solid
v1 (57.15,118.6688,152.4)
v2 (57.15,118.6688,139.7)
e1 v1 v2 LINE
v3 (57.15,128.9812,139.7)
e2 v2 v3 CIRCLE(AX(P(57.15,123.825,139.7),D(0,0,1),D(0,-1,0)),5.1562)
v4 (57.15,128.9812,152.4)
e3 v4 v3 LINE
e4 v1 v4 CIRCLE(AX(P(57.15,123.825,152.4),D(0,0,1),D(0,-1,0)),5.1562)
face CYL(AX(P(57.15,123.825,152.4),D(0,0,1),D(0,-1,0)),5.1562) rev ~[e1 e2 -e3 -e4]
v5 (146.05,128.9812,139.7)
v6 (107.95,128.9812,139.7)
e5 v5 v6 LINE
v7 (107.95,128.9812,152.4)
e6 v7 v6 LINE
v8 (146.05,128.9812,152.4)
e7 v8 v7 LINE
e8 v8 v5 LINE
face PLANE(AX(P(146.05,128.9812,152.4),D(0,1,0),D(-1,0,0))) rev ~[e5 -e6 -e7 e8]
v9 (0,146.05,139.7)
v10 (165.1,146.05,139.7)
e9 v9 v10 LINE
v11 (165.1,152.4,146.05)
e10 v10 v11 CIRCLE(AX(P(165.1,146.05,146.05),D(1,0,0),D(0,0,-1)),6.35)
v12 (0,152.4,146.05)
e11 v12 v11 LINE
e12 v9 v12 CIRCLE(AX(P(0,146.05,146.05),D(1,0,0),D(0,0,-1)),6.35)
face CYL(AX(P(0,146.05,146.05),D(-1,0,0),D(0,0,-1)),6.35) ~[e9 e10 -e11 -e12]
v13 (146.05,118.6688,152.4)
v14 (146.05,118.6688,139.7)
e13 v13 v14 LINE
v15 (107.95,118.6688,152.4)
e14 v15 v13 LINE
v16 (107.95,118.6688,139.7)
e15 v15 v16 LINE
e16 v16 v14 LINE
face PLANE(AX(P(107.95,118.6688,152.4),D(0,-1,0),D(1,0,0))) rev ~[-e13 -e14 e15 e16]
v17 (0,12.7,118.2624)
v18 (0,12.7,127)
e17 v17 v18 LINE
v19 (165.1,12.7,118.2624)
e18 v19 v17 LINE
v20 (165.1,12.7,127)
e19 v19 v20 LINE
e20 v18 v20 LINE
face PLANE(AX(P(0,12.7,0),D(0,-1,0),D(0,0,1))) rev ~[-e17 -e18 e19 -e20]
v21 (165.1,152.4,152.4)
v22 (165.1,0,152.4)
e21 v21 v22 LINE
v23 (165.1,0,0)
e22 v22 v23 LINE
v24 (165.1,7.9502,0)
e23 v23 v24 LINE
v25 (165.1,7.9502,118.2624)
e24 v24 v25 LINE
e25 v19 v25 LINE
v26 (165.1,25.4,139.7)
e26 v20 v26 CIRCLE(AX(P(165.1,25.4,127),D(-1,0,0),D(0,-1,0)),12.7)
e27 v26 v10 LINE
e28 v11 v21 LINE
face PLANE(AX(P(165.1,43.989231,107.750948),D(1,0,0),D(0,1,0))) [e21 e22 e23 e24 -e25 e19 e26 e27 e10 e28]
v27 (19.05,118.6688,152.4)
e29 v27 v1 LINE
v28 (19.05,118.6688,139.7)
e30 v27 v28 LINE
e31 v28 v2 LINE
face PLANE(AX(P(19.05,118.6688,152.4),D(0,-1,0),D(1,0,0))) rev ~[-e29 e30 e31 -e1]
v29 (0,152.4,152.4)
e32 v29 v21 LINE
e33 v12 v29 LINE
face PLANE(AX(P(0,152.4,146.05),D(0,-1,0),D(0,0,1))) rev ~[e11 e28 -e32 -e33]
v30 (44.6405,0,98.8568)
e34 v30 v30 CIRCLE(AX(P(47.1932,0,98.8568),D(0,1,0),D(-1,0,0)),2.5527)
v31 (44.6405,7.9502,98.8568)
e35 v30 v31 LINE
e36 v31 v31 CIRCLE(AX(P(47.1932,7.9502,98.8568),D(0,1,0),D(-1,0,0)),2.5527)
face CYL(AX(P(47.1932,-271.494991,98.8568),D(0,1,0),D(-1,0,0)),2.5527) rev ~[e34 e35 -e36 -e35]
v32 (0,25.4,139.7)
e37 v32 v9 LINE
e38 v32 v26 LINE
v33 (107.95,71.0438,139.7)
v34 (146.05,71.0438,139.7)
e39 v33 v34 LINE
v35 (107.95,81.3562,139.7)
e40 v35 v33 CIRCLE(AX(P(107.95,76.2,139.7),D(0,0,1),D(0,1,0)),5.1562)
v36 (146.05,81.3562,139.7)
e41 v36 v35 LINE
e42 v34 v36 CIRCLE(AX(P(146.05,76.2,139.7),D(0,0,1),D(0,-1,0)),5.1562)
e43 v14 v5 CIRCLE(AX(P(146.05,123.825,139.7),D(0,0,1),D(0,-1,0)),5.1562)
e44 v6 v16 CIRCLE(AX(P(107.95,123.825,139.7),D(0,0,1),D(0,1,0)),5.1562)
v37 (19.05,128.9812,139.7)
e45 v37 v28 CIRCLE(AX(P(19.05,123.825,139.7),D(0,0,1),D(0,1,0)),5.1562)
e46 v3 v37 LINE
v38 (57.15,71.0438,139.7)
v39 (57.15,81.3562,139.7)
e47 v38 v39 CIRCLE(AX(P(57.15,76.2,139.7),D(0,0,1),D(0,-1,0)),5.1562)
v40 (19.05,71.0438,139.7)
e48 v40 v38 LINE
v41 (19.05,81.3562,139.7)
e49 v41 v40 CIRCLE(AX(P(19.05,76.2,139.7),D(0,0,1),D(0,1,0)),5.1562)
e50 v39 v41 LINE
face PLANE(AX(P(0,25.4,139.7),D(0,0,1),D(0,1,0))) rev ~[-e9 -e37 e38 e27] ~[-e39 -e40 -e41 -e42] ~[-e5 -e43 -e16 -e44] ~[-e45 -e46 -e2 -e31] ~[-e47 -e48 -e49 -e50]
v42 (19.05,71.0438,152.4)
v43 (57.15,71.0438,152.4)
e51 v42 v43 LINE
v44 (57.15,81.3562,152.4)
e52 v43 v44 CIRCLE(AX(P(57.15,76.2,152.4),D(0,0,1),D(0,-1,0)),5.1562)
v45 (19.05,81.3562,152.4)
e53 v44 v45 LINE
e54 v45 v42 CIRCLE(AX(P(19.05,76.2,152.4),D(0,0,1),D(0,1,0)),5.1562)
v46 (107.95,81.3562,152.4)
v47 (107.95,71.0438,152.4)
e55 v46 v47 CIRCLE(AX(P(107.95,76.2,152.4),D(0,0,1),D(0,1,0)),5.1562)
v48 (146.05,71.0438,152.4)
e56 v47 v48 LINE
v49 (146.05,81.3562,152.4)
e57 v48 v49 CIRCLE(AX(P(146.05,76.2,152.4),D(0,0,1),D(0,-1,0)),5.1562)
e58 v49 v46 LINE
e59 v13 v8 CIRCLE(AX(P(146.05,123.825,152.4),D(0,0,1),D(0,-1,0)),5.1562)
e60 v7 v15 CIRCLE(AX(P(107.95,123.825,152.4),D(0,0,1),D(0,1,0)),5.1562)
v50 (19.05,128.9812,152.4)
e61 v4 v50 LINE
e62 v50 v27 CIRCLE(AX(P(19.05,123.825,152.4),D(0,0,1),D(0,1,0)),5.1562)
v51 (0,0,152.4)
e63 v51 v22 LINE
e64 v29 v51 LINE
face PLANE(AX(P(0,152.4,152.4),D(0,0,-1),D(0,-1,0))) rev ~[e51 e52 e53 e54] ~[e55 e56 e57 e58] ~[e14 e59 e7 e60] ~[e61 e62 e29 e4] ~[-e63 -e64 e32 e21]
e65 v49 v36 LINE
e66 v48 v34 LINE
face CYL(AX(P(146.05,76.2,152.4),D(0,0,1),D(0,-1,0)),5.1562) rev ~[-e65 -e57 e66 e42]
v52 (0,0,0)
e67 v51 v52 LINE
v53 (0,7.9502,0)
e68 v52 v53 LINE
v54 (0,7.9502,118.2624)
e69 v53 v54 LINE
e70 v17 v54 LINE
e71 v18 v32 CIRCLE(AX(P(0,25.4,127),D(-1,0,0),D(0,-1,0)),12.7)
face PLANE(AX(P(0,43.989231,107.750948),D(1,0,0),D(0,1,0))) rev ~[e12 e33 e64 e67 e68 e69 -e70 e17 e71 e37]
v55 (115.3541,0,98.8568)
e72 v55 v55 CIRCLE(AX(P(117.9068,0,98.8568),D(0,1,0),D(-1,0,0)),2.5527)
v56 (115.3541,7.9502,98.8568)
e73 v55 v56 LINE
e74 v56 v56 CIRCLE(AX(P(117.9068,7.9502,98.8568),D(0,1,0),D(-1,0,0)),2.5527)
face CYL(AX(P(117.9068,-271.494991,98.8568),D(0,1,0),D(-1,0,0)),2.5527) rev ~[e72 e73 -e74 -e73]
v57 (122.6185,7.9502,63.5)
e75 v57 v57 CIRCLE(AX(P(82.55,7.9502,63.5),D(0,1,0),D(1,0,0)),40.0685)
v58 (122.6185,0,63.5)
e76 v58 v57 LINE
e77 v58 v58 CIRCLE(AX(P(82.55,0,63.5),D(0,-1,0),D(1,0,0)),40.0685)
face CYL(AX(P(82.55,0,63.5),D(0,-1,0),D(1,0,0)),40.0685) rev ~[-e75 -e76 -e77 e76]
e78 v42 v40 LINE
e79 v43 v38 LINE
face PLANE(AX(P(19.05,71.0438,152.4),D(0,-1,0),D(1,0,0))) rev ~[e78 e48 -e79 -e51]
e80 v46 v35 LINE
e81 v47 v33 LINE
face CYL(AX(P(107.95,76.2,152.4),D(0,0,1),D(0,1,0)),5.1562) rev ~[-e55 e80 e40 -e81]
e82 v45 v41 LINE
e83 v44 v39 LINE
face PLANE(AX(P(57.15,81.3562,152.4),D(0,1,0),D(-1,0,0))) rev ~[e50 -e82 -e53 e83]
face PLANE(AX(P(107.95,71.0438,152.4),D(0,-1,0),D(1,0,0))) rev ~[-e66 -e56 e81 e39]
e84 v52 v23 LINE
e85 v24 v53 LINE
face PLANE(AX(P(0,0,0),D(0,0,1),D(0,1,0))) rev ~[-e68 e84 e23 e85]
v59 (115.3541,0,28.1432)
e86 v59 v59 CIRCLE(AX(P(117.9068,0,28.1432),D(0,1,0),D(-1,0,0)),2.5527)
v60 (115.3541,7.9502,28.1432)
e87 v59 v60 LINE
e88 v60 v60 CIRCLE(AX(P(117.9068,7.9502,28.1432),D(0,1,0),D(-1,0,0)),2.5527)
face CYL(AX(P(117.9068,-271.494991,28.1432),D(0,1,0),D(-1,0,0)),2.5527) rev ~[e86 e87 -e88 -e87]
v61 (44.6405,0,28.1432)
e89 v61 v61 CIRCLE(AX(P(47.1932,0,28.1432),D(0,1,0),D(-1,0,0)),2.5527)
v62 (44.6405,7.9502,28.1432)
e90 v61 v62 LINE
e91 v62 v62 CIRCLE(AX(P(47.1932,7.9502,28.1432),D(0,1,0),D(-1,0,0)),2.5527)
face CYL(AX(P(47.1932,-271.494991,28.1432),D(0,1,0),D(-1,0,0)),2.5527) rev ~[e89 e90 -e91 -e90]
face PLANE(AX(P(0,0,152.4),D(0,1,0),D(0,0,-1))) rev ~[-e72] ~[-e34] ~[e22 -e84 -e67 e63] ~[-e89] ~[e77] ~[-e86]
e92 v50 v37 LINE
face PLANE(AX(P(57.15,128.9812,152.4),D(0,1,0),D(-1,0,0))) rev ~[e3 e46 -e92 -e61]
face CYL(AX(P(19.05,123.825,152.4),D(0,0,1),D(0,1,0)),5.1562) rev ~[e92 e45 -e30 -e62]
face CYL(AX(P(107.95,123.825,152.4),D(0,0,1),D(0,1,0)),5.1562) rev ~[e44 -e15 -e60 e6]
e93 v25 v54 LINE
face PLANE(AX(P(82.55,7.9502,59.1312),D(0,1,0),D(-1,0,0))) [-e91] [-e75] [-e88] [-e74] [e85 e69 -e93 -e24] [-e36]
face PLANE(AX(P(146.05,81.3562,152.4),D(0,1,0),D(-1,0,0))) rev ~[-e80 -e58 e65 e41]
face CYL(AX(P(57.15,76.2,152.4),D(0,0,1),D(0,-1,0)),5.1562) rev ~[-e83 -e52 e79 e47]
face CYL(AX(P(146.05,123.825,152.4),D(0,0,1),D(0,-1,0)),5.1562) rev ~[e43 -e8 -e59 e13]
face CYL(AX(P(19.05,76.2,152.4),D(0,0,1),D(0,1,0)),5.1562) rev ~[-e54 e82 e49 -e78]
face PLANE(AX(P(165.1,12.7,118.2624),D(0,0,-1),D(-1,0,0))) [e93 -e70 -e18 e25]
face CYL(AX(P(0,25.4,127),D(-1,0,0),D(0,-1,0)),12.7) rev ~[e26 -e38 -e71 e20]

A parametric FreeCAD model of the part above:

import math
import FreeCAD as App
import Part
import Sketcher

V = App.Vector
Q = App.Units.Quantity

doc = App.newDocument("Part")
params = doc.addObject("Spreadsheet::Sheet", "Params")
for row, (alias, value) in enumerate([
    ("sketch1_radius", "0.5 in"),
    ("sketch1_width", "6 in"),
    ("sketch1_height", "5 in"),
    ("sketch1_radius2", "0.25 in"),
    ("sketch1_width2", "0.5 in"),
    ("pad1_length", "6.5 in"),
    ("sketch2_diameter", "3.155 in"),
    ("pocket1_length", "1 in"),
    ("sketch3_diameter", "0.201 in"),
    ("hole_diameter", "0.201 in"),
    ("sketch4_width", "1.5 in"),
    ("sketch4_radius", "0.203 in"),
    ("pocket2_length", "1 in"),
    ("sketch5_diameter", "0.201 in"),
    ("sketch5_diameter2", "3.155 in"),
    ("sketch5_width", "6.5 in"),
    ("sketch5_height", "4.656 in"),
    ("pocket3_length", "0.187 in"),
], start=1):
    params.set(f"A{row}", alias)
    params.set(f"B{row}", "=" + value)
    params.setAlias(f"B{row}", alias)

body = doc.addObject("PartDesign::Body", "Body")

# Sketch on YZ plane
sketch1 = body.newObject("Sketcher::SketchObject", "Sketch")
sketch1.AttachmentSupport = (doc.getObject("YZ_Plane"), [""])
sketch1.MapMode = "FlatFace"
sketch1.addGeometry([
    Part.LineSegment(V(0, 152, 0), V(0, 0, 0)),  # 0
    Part.LineSegment(V(0, 0, 0), V(13, 0, 0)),  # 1
    Part.LineSegment(V(13, 0, 0), V(13, 127, 0)),  # 2
    Part.ArcOfCircle(Part.Circle(V(25, 127, 0), V(0, 0, 1), 13), math.radians(90), math.radians(180)),  # 3
    Part.LineSegment(V(25, 140, 0), V(146, 140, 0)),  # 4
    Part.ArcOfCircle(Part.Circle(V(146, 146, 0), V(0, 0, 1), 6), math.radians(-90), math.radians(0)),  # 5
    Part.LineSegment(V(152, 146, 0), V(152, 152, 0)),  # 6
    Part.LineSegment(V(152, 152, 0), V(0, 152, 0)),  # 7
], False)
sketch1.addConstraint([
    Sketcher.Constraint("Coincident", 0, 2, 1, 1),
    Sketcher.Constraint("Coincident", 1, 2, 2, 1),
    Sketcher.Constraint("Tangent", 2, 2, 3, 2),
    Sketcher.Constraint("Tangent", 3, 1, 4, 1),
    Sketcher.Constraint("Tangent", 4, 2, 5, 1),
    Sketcher.Constraint("Tangent", 5, 2, 6, 1),
    Sketcher.Constraint("Coincident", 6, 2, 7, 1),
    Sketcher.Constraint("Coincident", 7, 2, 0, 1),
    Sketcher.Constraint("Vertical", 0),
    Sketcher.Constraint("Horizontal", 1),
    Sketcher.Constraint("Vertical", 2),
    Sketcher.Constraint("Horizontal", 4),
    Sketcher.Constraint("Vertical", 6),
    Sketcher.Constraint("Horizontal", 7),
    Sketcher.Constraint("Coincident", 0, 2, -1, 1),
    Sketcher.Constraint("Equal", 7, 0),
    Sketcher.Constraint("Radius", 3, Q("0.5 in")),
    Sketcher.Constraint("DistanceX", 7, 2, 7, 1, Q("6 in")),
    Sketcher.Constraint("DistanceY", 2, 1, 2, 2, Q("5 in")),
    Sketcher.Constraint("Radius", 5, Q("0.25 in")),
    Sketcher.Constraint("DistanceX", 1, 1, 1, 2, Q("0.5 in")),
])
sketch1.setExpression("Constraints[16]", "Params.sketch1_radius")
sketch1.setExpression("Constraints[17]", "Params.sketch1_width")
sketch1.setExpression("Constraints[18]", "Params.sketch1_height")
sketch1.setExpression("Constraints[19]", "Params.sketch1_radius2")
sketch1.setExpression("Constraints[20]", "Params.sketch1_width2")
pad1 = body.newObject("PartDesign::Pad", "Pad")
pad1.Profile = sketch1
pad1.setExpression("Length", "Params.pad1_length")

# Sketch on XZ plane
sketch2 = body.newObject("Sketcher::SketchObject", "Sketch001")
sketch2.AttachmentSupport = (doc.getObject("XZ_Plane"), [""])
sketch2.MapMode = "FlatFace"
sketch2.addGeometry(Part.Circle(V(83, 64, 0), V(0, 0, 1), 40), False)
sketch2.addConstraint([
    Sketcher.Constraint("Diameter", 0, Q("3.155 in")),
    Sketcher.Constraint("DistanceY", -1, 1, 0, 3, Q("2.5 in")),
    Sketcher.Constraint("DistanceX", -1, 1, 0, 3, Q("3.25 in")),
])
sketch2.setExpression("Constraints[0]", "Params.sketch2_diameter")
pocket1 = body.newObject("PartDesign::Pocket", "Pocket")
pocket1.Profile = sketch2
pocket1.setExpression("Length", "Params.pocket1_length")

# Sketch on XZ plane
sketch3 = body.newObject("Sketcher::SketchObject", "Sketch002")
sketch3.AttachmentSupport = (doc.getObject("XZ_Plane"), [""])
sketch3.MapMode = "FlatFace"
sketch3.addGeometry([
    Part.Circle(V(47.2, 98.9, 0), V(0, 0, 1), 2.6),
    Part.Circle(V(117.9, 98.9, 0), V(0, 0, 1), 2.6),
    Part.Circle(V(117.9, 28.1, 0), V(0, 0, 1), 2.6),
    Part.Circle(V(47.2, 28.1, 0), V(0, 0, 1), 2.6),
], False)
sketch3.addConstraint([
    Sketcher.Constraint("Equal", 0, 1),
    Sketcher.Constraint("Equal", 1, 2),
    Sketcher.Constraint("Equal", 2, 3),
    Sketcher.Constraint("Horizontal", 0, 3, 1, 3),
    Sketcher.Constraint("Horizontal", 2, 3, 3, 3),
    Sketcher.Constraint("Vertical", 1, 3, 2, 3),
    Sketcher.Constraint("Vertical", 0, 3, 3, 3),
    Sketcher.Constraint("Diameter", 0, Q("0.201 in")),
    Sketcher.Constraint("DistanceX", -1, 1, 0, 3, Q("1.858 in")),
    Sketcher.Constraint("DistanceY", -1, 1, 0, 3, Q("3.892 in")),
    Sketcher.Constraint("DistanceX", -1, 1, 1, 3, Q("4.642 in")),
    Sketcher.Constraint("DistanceY", -1, 1, 2, 3, Q("1.108 in")),
])
sketch3.setExpression("Constraints[7]", "Params.sketch3_diameter")
doc.recompute()
hole = body.newObject("PartDesign::Hole", "Hole")
hole.Profile = sketch3
hole.ThreadType = "None"
hole.setExpression("Diameter", "Params.hole_diameter")
hole.DepthType = "ThroughAll"

# Sketch on XY plane
sketch4 = body.newObject("Sketcher::SketchObject", "Sketch003")
sketch4.AttachmentSupport = (doc.getObject("XY_Plane"), [""])
sketch4.MapMode = "FlatFace"
sketch4.AttachmentOffset = App.Placement(V(0, 0, 6 * 25.4), App.Rotation())
sketch4.addGeometry([
    Part.ArcOfCircle(Part.Circle(V(19, 124, 0), V(0, 0, 1), 5), math.radians(90), math.radians(270)),  # 0
    Part.LineSegment(V(19, 119, 0), V(57, 119, 0)),  # 1
    Part.ArcOfCircle(Part.Circle(V(57, 124, 0), V(0, 0, 1), 5), math.radians(-90), math.radians(90)),  # 2
    Part.LineSegment(V(57, 129, 0), V(19, 129, 0)),  # 3
    Part.ArcOfCircle(Part.Circle(V(108, 124, 0), V(0, 0, 1), 5), math.radians(90), math.radians(270)),  # 4
    Part.LineSegment(V(108, 119, 0), V(146, 119, 0)),  # 5
    Part.ArcOfCircle(Part.Circle(V(146, 124, 0), V(0, 0, 1), 5), math.radians(-90), math.radians(90)),  # 6
    Part.LineSegment(V(146, 129, 0), V(108, 129, 0)),  # 7
    Part.ArcOfCircle(Part.Circle(V(108, 76, 0), V(0, 0, 1), 5), math.radians(90), math.radians(270)),  # 8
    Part.LineSegment(V(108, 71, 0), V(146, 71, 0)),  # 9
    Part.ArcOfCircle(Part.Circle(V(146, 76, 0), V(0, 0, 1), 5), math.radians(-90), math.radians(90)),  # 10
    Part.LineSegment(V(146, 81, 0), V(108, 81, 0)),  # 11
    Part.ArcOfCircle(Part.Circle(V(19, 76, 0), V(0, 0, 1), 5), math.radians(90), math.radians(270)),  # 12
    Part.LineSegment(V(19, 71, 0), V(57, 71, 0)),  # 13
    Part.ArcOfCircle(Part.Circle(V(57, 76, 0), V(0, 0, 1), 5), math.radians(-90), math.radians(90)),  # 14
    Part.LineSegment(V(57, 81, 0), V(19, 81, 0)),  # 15
], False)
sketch4.addConstraint([
    Sketcher.Constraint("Tangent", 0, 2, 1, 1),
    Sketcher.Constraint("Tangent", 1, 2, 2, 1),
    Sketcher.Constraint("Tangent", 2, 2, 3, 1),
    Sketcher.Constraint("Tangent", 3, 2, 0, 1),
    Sketcher.Constraint("Tangent", 4, 2, 5, 1),
    Sketcher.Constraint("Tangent", 5, 2, 6, 1),
    Sketcher.Constraint("Tangent", 6, 2, 7, 1),
    Sketcher.Constraint("Tangent", 7, 2, 4, 1),
    Sketcher.Constraint("Tangent", 8, 2, 9, 1),
    Sketcher.Constraint("Tangent", 9, 2, 10, 1),
    Sketcher.Constraint("Tangent", 10, 2, 11, 1),
    Sketcher.Constraint("Tangent", 11, 2, 8, 1),
    Sketcher.Constraint("Tangent", 12, 2, 13, 1),
    Sketcher.Constraint("Tangent", 13, 2, 14, 1),
    Sketcher.Constraint("Tangent", 14, 2, 15, 1),
    Sketcher.Constraint("Tangent", 15, 2, 12, 1),
    Sketcher.Constraint("Horizontal", 1),
    Sketcher.Constraint("Horizontal", 3),
    Sketcher.Constraint("Horizontal", 5),
    Sketcher.Constraint("Horizontal", 7),
    Sketcher.Constraint("Horizontal", 9),
    Sketcher.Constraint("Horizontal", 11),
    Sketcher.Constraint("Horizontal", 13),
    Sketcher.Constraint("Horizontal", 15),
    Sketcher.Constraint("Equal", 2, 4),
    Sketcher.Constraint("Equal", 6, 8),
    Sketcher.Constraint("Equal", 10, 12),
    Sketcher.Constraint("Horizontal", 2, 3, 4, 3),
    Sketcher.Constraint("Horizontal", 10, 3, 12, 3),
    Sketcher.Constraint("Vertical", 4, 3, 8, 3),
    Sketcher.Constraint("Vertical", 6, 3, 10, 3),
    Sketcher.Constraint("Vertical", 0, 3, 12, 3),
    Sketcher.Constraint("Vertical", 2, 3, 14, 3),
    Sketcher.Constraint("Equal", 3, 5),
    Sketcher.Constraint("DistanceX", 1, 1, 1, 2, Q("1.5 in")),
    Sketcher.Constraint("DistanceY", -1, 1, 8, 3, Q("3 in")),
    Sketcher.Constraint("Radius", 0, Q("0.203 in")),
    Sketcher.Constraint("DistanceX", 2, 3, 4, 3, Q("2 in")),
    Sketcher.Constraint("DistanceX", -1, 1, 0, 3, Q("0.75 in")),
    Sketcher.Constraint("DistanceY", -1, 1, 0, 3, Q("4.875 in")),
])
sketch4.setExpression("Constraints[34]", "Params.sketch4_width")
sketch4.setExpression("Constraints[36]", "Params.sketch4_radius")
pocket2 = body.newObject("PartDesign::Pocket", "Pocket001")
pocket2.Profile = sketch4
pocket2.setExpression("Length", "Params.pocket2_length")

# Sketch on XZ plane
sketch5 = body.newObject("Sketcher::SketchObject", "Sketch004")
sketch5.AttachmentSupport = (doc.getObject("XZ_Plane"), [""])
sketch5.MapMode = "FlatFace"
sketch5.AttachmentOffset = App.Placement(V(0, 0, -0.5 * 25.4), App.Rotation())
sketch5.addGeometry([
    Part.LineSegment(V(165.1, 118.3, 0), V(165.1, 0, 0)),  # 0
    Part.LineSegment(V(165.1, 0, 0), V(0, 0, 0)),  # 1
    Part.LineSegment(V(0, 0, 0), V(0, 118.3, 0)),  # 2
    Part.LineSegment(V(0, 118.3, 0), V(165.1, 118.3, 0)),  # 3
    Part.Circle(V(117.9, 28.1, 0), V(0, 0, 1), 2.6),  # 4
    Part.Circle(V(47.2, 28.1, 0), V(0, 0, 1), 2.6),  # 5
    Part.Circle(V(117.9, 98.9, 0), V(0, 0, 1), 2.6),  # 6
    Part.Circle(V(82.5, 63.5, 0), V(0, 0, 1), 40.1),  # 7
    Part.Circle(V(47.2, 98.9, 0), V(0, 0, 1), 2.6),  # 8
], False)
sketch5.addConstraint([
    Sketcher.Constraint("Coincident", 0, 2, 1, 1),
    Sketcher.Constraint("Coincident", 1, 2, 2, 1),
    Sketcher.Constraint("Coincident", 2, 2, 3, 1),
    Sketcher.Constraint("Coincident", 3, 2, 0, 1),
    Sketcher.Constraint("Vertical", 0),
    Sketcher.Constraint("Horizontal", 1),
    Sketcher.Constraint("Vertical", 2),
    Sketcher.Constraint("Horizontal", 3),
    Sketcher.Constraint("Coincident", 1, 2, -1, 1),
    Sketcher.Constraint("Equal", 4, 5),
    Sketcher.Constraint("Equal", 5, 6),
    Sketcher.Constraint("Equal", 6, 8),
    Sketcher.Constraint("Horizontal", 4, 3, 5, 3),
    Sketcher.Constraint("Horizontal", 6, 3, 8, 3),
    Sketcher.Constraint("Vertical", 4, 3, 6, 3),
    Sketcher.Constraint("Vertical", 5, 3, 8, 3),
    Sketcher.Constraint("Diameter", 4, Q("0.201 in")),
    Sketcher.Constraint("Diameter", 7, Q("3.155 in")),
    Sketcher.Constraint("DistanceX", 1, 2, 1, 1, Q("6.5 in")),
    Sketcher.Constraint("DistanceY", -1, 1, 7, 3, Q("2.5 in")),
    Sketcher.Constraint("DistanceY", 0, 2, 0, 1, Q("4.656 in")),
    Sketcher.Constraint("DistanceX", -1, 1, 7, 3, Q("3.25 in")),
    Sketcher.Constraint("DistanceX", -1, 1, 4, 3, Q("4.642 in")),
    Sketcher.Constraint("DistanceY", -1, 1, 4, 3, Q("1.108 in")),
    Sketcher.Constraint("DistanceX", -1, 1, 5, 3, Q("1.858 in")),
    Sketcher.Constraint("DistanceY", -1, 1, 6, 3, Q("3.892 in")),
])
sketch5.setExpression("Constraints[16]", "Params.sketch5_diameter")
sketch5.setExpression("Constraints[17]", "Params.sketch5_diameter2")
sketch5.setExpression("Constraints[18]", "Params.sketch5_width")
sketch5.setExpression("Constraints[20]", "Params.sketch5_height")
pocket3 = body.newObject("PartDesign::Pocket", "Pocket002")
pocket3.Profile = sketch5
pocket3.setExpression("Length", "Params.pocket3_length")
pocket3.Reversed = True

doc.recompute()
